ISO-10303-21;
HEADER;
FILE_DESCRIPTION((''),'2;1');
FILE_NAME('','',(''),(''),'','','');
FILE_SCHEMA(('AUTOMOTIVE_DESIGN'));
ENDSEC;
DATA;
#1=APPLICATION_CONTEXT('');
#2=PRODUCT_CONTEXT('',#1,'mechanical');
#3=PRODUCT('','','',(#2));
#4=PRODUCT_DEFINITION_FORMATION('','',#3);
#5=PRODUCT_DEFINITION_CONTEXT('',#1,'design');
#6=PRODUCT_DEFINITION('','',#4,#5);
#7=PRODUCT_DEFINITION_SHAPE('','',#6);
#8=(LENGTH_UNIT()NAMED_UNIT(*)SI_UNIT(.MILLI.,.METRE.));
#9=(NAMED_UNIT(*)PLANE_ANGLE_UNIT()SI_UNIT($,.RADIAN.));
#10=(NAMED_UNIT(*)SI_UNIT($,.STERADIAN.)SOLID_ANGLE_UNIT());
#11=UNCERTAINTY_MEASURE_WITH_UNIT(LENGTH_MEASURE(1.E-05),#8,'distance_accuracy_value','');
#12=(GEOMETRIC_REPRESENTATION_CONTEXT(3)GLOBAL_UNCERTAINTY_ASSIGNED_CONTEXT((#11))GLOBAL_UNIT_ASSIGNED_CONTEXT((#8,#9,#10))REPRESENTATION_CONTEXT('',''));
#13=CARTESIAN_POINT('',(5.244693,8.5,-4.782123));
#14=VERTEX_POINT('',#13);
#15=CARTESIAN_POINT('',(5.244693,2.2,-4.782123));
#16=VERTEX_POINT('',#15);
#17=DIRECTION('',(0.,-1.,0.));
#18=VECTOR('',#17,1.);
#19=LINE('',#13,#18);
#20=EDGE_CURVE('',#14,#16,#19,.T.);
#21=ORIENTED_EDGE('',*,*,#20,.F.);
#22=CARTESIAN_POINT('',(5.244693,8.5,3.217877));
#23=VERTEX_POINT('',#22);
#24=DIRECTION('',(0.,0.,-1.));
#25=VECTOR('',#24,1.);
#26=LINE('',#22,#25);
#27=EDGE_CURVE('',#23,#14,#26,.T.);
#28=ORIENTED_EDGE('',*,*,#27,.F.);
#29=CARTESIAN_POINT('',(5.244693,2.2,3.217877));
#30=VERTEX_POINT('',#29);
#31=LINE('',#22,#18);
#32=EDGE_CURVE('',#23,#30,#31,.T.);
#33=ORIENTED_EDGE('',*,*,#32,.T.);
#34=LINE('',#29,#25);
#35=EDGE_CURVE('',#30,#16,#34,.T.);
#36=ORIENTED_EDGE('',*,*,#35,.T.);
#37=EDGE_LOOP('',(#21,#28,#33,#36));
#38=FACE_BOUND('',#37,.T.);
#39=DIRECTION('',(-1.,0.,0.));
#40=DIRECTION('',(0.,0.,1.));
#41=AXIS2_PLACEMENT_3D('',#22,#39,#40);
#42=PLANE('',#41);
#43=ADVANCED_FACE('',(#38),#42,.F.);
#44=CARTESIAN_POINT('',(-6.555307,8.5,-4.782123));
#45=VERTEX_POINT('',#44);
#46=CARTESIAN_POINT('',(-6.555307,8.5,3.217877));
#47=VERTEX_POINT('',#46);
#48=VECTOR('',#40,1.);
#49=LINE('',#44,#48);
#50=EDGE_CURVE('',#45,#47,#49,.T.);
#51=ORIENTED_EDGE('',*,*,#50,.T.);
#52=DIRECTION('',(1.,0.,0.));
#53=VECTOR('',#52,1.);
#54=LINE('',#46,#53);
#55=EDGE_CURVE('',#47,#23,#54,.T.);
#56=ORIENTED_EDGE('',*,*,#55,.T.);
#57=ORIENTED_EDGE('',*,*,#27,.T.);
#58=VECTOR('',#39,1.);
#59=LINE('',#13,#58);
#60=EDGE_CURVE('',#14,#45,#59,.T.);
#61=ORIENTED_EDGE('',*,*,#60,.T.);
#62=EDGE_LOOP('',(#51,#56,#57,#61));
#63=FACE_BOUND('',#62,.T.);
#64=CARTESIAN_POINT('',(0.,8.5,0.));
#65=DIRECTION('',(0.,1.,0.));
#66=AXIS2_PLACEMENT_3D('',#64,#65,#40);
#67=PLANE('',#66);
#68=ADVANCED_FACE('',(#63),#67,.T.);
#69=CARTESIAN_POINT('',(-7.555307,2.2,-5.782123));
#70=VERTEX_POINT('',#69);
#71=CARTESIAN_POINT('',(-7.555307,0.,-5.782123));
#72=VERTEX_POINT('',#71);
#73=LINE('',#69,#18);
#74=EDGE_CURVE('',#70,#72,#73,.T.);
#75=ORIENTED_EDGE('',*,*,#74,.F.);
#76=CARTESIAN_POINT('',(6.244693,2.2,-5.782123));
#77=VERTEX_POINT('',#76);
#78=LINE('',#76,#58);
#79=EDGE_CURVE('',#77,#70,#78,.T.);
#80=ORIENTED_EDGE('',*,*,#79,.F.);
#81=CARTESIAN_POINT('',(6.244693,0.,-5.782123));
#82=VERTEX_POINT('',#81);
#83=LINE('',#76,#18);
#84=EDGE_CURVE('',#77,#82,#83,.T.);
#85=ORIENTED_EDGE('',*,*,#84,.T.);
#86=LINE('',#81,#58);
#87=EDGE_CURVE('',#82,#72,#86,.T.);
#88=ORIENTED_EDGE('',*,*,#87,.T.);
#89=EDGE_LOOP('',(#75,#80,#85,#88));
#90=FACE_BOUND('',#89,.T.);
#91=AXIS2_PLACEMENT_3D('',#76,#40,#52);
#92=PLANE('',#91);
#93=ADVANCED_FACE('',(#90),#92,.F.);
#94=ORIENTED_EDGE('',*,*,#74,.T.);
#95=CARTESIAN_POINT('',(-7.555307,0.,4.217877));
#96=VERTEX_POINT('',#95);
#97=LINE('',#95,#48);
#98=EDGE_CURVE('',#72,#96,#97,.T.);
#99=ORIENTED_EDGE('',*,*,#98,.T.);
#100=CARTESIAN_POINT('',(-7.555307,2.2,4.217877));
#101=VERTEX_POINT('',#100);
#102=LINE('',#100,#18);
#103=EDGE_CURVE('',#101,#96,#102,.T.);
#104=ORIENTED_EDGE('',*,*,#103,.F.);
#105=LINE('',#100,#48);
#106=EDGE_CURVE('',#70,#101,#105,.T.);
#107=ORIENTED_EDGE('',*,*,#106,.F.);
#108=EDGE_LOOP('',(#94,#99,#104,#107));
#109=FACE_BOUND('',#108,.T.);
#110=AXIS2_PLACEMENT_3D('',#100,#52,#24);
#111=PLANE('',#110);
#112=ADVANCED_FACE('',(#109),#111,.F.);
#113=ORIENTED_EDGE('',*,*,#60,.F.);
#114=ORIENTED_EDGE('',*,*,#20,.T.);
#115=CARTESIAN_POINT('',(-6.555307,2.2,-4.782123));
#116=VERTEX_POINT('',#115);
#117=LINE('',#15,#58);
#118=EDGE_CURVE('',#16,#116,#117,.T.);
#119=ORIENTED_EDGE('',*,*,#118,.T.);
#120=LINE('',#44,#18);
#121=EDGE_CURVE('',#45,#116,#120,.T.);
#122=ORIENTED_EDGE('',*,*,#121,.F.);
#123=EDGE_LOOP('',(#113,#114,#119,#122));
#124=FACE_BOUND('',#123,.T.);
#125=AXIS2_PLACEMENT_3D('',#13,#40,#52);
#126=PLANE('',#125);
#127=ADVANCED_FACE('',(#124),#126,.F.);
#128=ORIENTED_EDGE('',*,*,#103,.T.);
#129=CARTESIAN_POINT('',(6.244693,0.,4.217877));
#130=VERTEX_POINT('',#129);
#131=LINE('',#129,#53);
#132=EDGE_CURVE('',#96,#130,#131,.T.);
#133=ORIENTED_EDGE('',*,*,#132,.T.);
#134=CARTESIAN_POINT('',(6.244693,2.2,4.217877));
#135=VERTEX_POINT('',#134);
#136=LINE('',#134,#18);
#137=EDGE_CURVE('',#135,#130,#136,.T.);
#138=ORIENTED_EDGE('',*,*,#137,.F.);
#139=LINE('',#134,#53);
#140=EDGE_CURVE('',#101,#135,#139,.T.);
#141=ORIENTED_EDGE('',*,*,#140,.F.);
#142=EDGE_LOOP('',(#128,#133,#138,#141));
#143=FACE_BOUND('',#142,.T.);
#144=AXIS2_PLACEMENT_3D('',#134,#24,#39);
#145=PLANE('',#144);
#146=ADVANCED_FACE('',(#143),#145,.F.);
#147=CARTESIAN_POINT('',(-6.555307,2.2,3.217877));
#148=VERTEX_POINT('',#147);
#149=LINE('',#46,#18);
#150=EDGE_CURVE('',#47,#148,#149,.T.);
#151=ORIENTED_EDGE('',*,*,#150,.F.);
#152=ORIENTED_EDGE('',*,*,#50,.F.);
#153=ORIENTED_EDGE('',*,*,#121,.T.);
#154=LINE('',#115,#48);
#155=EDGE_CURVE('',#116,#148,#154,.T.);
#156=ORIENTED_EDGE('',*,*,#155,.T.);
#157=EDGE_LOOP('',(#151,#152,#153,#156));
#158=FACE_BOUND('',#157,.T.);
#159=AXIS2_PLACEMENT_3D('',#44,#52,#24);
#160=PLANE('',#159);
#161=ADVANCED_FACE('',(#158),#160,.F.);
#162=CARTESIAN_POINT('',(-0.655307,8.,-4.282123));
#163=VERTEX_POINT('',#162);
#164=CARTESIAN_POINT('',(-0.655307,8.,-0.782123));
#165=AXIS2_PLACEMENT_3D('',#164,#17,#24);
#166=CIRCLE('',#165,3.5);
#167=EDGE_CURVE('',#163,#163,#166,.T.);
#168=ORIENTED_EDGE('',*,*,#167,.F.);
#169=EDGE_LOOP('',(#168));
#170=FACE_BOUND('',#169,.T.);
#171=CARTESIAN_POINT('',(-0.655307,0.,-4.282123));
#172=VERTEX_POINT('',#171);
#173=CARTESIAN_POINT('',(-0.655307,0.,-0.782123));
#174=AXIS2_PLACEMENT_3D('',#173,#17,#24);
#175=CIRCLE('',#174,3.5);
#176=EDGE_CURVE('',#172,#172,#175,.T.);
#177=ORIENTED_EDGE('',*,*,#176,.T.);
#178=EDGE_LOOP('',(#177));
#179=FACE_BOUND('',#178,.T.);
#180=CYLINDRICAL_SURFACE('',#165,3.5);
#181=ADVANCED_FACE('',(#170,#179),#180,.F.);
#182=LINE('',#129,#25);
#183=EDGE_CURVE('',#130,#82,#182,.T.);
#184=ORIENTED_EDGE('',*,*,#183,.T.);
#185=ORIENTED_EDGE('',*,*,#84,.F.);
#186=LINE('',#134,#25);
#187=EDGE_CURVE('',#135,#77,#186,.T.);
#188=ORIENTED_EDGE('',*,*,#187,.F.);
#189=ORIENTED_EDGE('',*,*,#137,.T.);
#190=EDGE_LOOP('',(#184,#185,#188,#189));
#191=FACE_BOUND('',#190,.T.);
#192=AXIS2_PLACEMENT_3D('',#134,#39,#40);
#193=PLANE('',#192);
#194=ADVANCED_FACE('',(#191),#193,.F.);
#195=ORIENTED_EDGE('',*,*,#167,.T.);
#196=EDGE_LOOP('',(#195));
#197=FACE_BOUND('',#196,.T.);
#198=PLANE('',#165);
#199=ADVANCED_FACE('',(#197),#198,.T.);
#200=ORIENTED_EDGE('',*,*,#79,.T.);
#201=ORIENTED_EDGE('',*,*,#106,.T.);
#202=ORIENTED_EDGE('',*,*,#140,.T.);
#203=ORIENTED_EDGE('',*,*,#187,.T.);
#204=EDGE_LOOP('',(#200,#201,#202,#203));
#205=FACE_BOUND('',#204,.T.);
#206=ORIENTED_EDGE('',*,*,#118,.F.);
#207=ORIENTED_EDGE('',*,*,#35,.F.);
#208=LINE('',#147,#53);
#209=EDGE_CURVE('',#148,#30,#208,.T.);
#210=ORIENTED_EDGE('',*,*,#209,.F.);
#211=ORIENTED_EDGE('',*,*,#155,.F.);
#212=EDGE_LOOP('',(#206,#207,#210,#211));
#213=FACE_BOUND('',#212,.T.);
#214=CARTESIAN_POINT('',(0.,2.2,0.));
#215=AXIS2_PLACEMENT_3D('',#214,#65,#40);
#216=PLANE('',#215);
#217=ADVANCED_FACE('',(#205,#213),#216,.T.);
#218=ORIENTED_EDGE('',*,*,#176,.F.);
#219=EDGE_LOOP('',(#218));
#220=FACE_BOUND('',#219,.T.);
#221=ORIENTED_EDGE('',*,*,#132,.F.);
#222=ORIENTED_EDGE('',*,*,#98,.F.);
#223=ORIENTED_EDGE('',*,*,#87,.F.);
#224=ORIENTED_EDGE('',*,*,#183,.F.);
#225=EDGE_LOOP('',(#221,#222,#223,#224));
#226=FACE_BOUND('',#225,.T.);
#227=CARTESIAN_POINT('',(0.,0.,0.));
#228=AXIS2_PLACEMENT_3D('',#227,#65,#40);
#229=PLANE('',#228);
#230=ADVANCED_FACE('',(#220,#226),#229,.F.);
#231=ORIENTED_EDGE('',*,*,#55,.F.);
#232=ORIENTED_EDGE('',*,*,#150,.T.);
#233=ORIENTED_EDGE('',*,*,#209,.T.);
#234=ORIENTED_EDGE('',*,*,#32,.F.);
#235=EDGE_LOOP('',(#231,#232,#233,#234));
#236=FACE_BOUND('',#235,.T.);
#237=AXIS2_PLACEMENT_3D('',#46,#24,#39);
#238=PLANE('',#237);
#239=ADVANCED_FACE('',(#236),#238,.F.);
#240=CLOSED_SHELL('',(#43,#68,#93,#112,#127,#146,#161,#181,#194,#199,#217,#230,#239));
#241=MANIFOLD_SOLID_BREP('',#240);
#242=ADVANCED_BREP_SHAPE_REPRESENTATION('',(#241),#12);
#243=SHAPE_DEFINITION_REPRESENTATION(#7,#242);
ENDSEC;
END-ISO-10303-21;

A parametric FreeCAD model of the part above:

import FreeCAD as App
import Part
import Sketcher

doc = App.newDocument("Part")
body = doc.addObject("PartDesign::Body", "Body")

sketch1 = body.newObject("Sketcher::SketchObject", "Sketch")
sketch1.AttachmentSupport = (doc.getObject("XZ_Plane"), [""])
sketch1.MapMode = "FlatFace"
sketch1.addGeometry(Part.LineSegment(App.Vector(-8, -6, 0), App.Vector(-8, 4, 0)), False)
sketch1.addGeometry(Part.LineSegment(App.Vector(-8, 4, 0), App.Vector(6, 4, 0)), False)
sketch1.addGeometry(Part.LineSegment(App.Vector(6, 4, 0), App.Vector(6, -6, 0)), False)
sketch1.addGeometry(Part.LineSegment(App.Vector(6, -6, 0), App.Vector(-8, -6, 0)), False)
sketch1.addConstraint(Sketcher.Constraint("Coincident", 0, 2, 1, 1))
sketch1.addConstraint(Sketcher.Constraint("Coincident", 1, 2, 2, 1))
sketch1.addConstraint(Sketcher.Constraint("Coincident", 2, 2, 3, 1))
sketch1.addConstraint(Sketcher.Constraint("Coincident", 3, 2, 0, 1))
sketch1.addConstraint(Sketcher.Constraint("Vertical", 0))
sketch1.addConstraint(Sketcher.Constraint("Horizontal", 1))
sketch1.addConstraint(Sketcher.Constraint("Vertical", 2))
sketch1.addConstraint(Sketcher.Constraint("Horizontal", 3))
sketch1.addConstraint(Sketcher.Constraint("DistanceY", 0, 1, 0, 2, 10.0))
sketch1.addConstraint(Sketcher.Constraint("DistanceX", 1, 1, 1, 2, 13.8))
sketch1.addConstraint(Sketcher.Constraint("DistanceX", 0, 2, -1, 1, 7.555307))
sketch1.addConstraint(Sketcher.Constraint("DistanceY", -1, 1, 0, 2, 4.217877))
pad1 = body.newObject("PartDesign::Pad", "Pad")
pad1.Profile = sketch1
pad1.Length = 2.2
pad1.Reversed = True

sketch2 = body.newObject("Sketcher::SketchObject", "Sketch001")
sketch2.AttachmentSupport = (doc.getObject("XZ_Plane"), [""])
sketch2.MapMode = "FlatFace"
sketch2.AttachmentOffset = App.Placement(App.Vector(0, 0, -2.2), App.Rotation())
sketch2.addGeometry(Part.LineSegment(App.Vector(-7, -5, 0), App.Vector(-7, 3, 0)), False)
sketch2.addGeometry(Part.LineSegment(App.Vector(-7, 3, 0), App.Vector(5, 3, 0)), False)
sketch2.addGeometry(Part.LineSegment(App.Vector(5, 3, 0), App.Vector(5, -5, 0)), False)
sketch2.addGeometry(Part.LineSegment(App.Vector(5, -5, 0), App.Vector(-7, -5, 0)), False)
sketch2.addConstraint(Sketcher.Constraint("Coincident", 0, 2, 1, 1))
sketch2.addConstraint(Sketcher.Constraint("Coincident", 1, 2, 2, 1))
sketch2.addConstraint(Sketcher.Constraint("Coincident", 2, 2, 3, 1))
sketch2.addConstraint(Sketcher.Constraint("Coincident", 3, 2, 0, 1))
sketch2.addConstraint(Sketcher.Constraint("Vertical", 0))
sketch2.addConstraint(Sketcher.Constraint("Horizontal", 1))
sketch2.addConstraint(Sketcher.Constraint("Vertical", 2))
sketch2.addConstraint(Sketcher.Constraint("Horizontal", 3))
sketch2.addConstraint(Sketcher.Constraint("DistanceY", 0, 1, 0, 2, 8.0))
sketch2.addConstraint(Sketcher.Constraint("DistanceX", 1, 1, 1, 2, 11.8))
sketch2.addConstraint(Sketcher.Constraint("DistanceX", 0, 2, -1, 1, 6.555307))
sketch2.addConstraint(Sketcher.Constraint("DistanceY", -1, 1, 0, 2, 3.217877))
pad2 = body.newObject("PartDesign::Pad", "Pad001")
pad2.Profile = sketch2
pad2.Length = 6.3
pad2.Reversed = True

sketch3 = body.newObject("Sketcher::SketchObject", "Sketch002")
sketch3.AttachmentSupport = (doc.getObject("XZ_Plane"), [""])
sketch3.MapMode = "FlatFace"
sketch3.addGeometry(Part.Circle(App.Vector(-0.7, -0.8, 0), App.Vector(0, 0, 1), 3.5), False)
sketch3.addConstraint(Sketcher.Constraint("Diameter", 0, 7.0))
sketch3.addConstraint(Sketcher.Constraint("DistanceX", 0, 3, -1, 1, 0.655307))
sketch3.addConstraint(Sketcher.Constraint("DistanceY", 0, 3, -1, 1, 0.782123))
pocket1 = body.newObject("PartDesign::Pocket", "Pocket")
pocket1.Profile = sketch3
pocket1.Length = 8

doc.recompute()
